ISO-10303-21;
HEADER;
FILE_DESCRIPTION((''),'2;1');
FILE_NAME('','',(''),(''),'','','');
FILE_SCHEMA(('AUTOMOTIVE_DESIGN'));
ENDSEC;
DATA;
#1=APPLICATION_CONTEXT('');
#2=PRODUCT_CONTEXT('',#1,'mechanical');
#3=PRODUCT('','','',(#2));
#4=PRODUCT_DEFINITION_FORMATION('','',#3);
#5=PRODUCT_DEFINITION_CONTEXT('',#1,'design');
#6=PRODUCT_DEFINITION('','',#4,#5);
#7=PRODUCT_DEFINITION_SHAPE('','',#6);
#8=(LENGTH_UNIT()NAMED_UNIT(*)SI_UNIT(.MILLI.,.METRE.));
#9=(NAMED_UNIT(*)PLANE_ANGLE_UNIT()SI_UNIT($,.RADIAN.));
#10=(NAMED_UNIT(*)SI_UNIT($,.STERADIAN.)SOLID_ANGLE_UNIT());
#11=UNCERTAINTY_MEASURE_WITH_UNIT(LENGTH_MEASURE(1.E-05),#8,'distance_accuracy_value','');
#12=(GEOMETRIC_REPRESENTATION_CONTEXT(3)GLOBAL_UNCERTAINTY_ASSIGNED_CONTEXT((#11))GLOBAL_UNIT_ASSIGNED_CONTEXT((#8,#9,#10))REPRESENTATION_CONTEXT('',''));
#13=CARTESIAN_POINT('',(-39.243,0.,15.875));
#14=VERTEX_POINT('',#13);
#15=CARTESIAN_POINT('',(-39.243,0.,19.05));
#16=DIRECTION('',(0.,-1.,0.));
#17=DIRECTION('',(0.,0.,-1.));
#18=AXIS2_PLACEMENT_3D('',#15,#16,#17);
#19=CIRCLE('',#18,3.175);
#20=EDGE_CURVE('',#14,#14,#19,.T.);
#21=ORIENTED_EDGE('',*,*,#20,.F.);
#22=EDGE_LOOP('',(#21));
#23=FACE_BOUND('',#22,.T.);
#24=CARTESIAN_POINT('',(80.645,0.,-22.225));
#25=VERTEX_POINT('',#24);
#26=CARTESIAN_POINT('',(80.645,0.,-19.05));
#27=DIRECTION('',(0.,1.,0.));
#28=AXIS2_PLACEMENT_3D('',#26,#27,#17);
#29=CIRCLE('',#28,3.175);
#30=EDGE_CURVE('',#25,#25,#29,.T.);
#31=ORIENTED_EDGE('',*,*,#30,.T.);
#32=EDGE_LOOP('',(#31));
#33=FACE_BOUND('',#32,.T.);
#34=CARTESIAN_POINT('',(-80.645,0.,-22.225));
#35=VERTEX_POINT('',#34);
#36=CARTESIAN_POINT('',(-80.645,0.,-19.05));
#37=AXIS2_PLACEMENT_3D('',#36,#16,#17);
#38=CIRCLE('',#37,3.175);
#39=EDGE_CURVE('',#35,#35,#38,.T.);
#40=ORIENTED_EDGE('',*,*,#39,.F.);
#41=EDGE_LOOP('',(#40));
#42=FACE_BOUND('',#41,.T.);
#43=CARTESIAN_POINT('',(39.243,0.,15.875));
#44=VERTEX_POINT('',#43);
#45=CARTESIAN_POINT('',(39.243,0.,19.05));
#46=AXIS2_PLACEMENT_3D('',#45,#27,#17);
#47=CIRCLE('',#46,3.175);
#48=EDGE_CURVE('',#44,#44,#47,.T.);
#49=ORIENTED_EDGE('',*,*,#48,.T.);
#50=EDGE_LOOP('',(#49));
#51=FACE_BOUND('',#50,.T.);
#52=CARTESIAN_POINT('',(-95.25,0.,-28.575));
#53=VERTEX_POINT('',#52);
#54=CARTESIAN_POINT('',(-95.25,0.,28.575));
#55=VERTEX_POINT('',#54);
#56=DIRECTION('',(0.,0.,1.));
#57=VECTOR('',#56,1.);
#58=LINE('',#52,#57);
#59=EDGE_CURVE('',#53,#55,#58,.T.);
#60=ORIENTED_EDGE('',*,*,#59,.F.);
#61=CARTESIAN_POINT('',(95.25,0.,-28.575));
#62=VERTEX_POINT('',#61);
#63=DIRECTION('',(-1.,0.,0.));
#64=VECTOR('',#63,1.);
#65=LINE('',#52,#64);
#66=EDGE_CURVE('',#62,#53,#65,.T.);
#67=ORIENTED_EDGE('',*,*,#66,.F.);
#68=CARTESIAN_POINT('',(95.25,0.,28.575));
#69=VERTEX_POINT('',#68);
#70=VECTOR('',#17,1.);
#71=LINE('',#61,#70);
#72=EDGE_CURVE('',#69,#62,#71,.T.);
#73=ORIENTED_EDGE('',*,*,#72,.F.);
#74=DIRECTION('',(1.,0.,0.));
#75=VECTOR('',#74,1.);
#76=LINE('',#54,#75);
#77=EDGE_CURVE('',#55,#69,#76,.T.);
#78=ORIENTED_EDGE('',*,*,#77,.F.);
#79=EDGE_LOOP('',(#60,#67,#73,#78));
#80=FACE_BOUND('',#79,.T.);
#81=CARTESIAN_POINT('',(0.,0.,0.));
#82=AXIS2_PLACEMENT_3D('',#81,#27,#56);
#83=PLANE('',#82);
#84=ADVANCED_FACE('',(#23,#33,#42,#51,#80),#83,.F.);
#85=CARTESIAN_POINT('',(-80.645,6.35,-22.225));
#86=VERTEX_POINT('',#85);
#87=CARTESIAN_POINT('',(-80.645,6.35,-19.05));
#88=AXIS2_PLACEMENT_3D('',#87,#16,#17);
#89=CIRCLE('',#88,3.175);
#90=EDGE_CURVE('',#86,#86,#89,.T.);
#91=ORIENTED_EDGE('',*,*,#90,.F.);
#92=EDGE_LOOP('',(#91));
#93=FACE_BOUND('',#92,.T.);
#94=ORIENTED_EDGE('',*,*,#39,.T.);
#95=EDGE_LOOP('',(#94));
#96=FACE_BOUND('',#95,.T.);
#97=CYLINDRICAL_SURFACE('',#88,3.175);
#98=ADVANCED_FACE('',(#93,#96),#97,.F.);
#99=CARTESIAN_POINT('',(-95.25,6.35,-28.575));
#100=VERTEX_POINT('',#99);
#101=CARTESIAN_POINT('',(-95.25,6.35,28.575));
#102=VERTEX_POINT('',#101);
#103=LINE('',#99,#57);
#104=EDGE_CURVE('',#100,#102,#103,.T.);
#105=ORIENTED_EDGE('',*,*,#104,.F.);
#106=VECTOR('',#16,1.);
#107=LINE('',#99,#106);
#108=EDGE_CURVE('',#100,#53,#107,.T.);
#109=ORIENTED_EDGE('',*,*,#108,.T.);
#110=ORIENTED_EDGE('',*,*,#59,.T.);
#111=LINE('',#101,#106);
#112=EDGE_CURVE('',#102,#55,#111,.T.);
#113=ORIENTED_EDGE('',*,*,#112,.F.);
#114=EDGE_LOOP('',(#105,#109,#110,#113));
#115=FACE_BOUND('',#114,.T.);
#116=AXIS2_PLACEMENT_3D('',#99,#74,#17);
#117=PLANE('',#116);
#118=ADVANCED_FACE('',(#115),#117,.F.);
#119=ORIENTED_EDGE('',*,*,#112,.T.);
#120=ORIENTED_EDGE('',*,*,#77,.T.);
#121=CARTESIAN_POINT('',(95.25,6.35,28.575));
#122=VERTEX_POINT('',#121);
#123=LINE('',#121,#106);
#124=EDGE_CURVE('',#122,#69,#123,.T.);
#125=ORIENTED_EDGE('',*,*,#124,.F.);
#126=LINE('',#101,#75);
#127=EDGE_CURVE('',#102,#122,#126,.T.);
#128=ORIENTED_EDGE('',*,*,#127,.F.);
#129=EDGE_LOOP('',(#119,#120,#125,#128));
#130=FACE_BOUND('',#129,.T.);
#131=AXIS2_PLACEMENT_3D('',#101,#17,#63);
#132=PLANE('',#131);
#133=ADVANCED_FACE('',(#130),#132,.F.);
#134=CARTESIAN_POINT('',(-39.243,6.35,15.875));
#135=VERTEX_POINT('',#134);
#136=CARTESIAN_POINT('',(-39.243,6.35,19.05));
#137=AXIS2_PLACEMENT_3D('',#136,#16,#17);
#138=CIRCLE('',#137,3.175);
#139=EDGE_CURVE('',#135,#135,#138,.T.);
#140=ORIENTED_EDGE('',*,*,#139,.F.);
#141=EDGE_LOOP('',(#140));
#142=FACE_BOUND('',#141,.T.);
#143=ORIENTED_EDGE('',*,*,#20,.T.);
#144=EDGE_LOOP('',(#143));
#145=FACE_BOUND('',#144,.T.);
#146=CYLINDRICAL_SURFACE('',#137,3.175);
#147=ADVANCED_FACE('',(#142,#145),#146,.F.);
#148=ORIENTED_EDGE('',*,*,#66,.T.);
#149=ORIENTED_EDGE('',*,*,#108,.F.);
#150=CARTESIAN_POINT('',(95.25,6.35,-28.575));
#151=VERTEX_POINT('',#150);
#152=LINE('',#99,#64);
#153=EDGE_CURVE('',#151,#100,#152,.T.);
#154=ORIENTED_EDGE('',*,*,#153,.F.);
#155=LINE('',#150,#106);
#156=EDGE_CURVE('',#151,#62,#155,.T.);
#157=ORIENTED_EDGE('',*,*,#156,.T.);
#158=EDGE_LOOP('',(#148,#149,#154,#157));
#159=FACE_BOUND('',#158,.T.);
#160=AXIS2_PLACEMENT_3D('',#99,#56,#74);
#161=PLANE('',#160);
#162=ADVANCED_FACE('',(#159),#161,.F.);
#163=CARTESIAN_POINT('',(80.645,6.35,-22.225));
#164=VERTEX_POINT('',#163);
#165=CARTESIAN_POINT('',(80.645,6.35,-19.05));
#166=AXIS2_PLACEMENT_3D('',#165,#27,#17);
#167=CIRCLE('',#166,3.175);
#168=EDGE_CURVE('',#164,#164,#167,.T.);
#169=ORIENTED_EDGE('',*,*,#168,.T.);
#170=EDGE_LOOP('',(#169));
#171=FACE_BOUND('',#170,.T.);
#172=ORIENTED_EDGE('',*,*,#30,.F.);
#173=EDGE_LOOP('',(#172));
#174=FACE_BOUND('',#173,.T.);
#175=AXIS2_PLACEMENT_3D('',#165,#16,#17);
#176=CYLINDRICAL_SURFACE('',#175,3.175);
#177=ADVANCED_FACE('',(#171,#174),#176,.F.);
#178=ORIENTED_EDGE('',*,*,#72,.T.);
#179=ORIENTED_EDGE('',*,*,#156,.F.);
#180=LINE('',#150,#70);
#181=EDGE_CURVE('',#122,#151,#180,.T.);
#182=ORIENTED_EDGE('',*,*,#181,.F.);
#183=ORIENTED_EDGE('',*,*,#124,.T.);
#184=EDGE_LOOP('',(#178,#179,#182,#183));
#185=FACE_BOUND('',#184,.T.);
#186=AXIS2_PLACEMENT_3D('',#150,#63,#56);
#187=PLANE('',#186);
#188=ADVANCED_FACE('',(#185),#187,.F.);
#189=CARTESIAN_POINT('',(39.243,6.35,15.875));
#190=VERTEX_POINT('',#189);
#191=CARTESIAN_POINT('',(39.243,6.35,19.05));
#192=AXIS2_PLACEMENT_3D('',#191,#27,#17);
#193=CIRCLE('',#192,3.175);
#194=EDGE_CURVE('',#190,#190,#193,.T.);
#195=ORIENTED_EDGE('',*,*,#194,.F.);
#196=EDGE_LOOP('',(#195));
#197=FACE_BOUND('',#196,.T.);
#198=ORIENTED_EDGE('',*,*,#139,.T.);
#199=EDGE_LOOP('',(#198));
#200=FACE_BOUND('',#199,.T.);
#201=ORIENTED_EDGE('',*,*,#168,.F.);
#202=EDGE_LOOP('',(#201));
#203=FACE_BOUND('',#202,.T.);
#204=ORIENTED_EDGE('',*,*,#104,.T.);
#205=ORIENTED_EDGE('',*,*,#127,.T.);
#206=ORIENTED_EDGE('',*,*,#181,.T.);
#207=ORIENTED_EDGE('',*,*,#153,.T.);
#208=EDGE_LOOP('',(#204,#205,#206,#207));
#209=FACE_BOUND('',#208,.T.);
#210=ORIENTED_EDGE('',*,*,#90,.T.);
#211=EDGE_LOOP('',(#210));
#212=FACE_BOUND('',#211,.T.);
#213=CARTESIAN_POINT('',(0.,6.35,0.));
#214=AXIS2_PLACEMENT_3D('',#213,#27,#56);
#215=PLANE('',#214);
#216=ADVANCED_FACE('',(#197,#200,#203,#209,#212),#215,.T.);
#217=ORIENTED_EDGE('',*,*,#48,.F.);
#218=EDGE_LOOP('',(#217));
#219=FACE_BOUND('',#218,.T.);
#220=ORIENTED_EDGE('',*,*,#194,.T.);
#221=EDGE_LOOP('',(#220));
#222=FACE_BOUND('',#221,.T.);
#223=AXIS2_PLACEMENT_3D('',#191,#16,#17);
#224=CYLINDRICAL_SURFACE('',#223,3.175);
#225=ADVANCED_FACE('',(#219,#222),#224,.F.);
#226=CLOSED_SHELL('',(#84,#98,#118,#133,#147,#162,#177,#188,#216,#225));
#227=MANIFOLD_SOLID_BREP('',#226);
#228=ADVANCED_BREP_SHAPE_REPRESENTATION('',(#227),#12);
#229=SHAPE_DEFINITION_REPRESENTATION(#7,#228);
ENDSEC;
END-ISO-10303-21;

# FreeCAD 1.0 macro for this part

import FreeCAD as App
import Part
import Sketcher
from FreeCAD import Vector
Q = App.Units.Quantity

doc = App.newDocument("Part")
body = doc.addObject("PartDesign::Body", "Body")

# Sketch on XZ plane
sketch1 = body.newObject("Sketcher::SketchObject", "Sketch")
sketch1.AttachmentSupport = (doc.getObject("XZ_Plane"), [""])
sketch1.MapMode = "FlatFace"
sketch1.addGeometry(Part.LineSegment(Vector(-95, -29, 0), Vector(-95, 29, 0)), False)
sketch1.addGeometry(Part.LineSegment(Vector(-95, 29, 0), Vector(95, 29, 0)), False)
sketch1.addGeometry(Part.LineSegment(Vector(95, 29, 0), Vector(95, -29, 0)), False)
sketch1.addGeometry(Part.LineSegment(Vector(95, -29, 0), Vector(-95, -29, 0)), False)
sketch1.addConstraint(Sketcher.Constraint("Coincident", 0, 2, 1, 1))
sketch1.addConstraint(Sketcher.Constraint("Coincident", 1, 2, 2, 1))
sketch1.addConstraint(Sketcher.Constraint("Coincident", 2, 2, 3, 1))
sketch1.addConstraint(Sketcher.Constraint("Coincident", 3, 2, 0, 1))
sketch1.addConstraint(Sketcher.Constraint("Vertical", 0))
sketch1.addConstraint(Sketcher.Constraint("Horizontal", 1))
sketch1.addConstraint(Sketcher.Constraint("Vertical", 2))
sketch1.addConstraint(Sketcher.Constraint("Horizontal", 3))
sketch1.addConstraint(Sketcher.Constraint("Symmetric", 0, 2, 2, 2, -1, 1))
sketch1.addConstraint(Sketcher.Constraint("DistanceX", 1, 1, 1, 2, Q("7.5 in")))
sketch1.addConstraint(Sketcher.Constraint("DistanceY", 0, 1, 0, 2, Q("2.25 in")))
pad1 = body.newObject("PartDesign::Pad", "Pad")
pad1.Profile = sketch1
pad1.Length = Q("0.25 in")
pad1.Reversed = True

# Sketch on XZ plane
sketch2 = body.newObject("Sketcher::SketchObject", "Sketch001")
sketch2.AttachmentSupport = (doc.getObject("XZ_Plane"), [""])
sketch2.MapMode = "FlatFace"
sketch2.addGeometry(Part.Circle(Vector(-80.6, -19.1, 0), Vector(0, 0, 1), 3.2), False)
sketch2.addGeometry(Part.Circle(Vector(-39.2, 19.1, 0), Vector(0, 0, 1), 3.2), False)
sketch2.addConstraint(Sketcher.Constraint("Equal", 0, 1))
sketch2.addConstraint(Sketcher.Constraint("Diameter", 0, Q("0.25 in")))
sketch2.addConstraint(Sketcher.Constraint("DistanceY", 0, 3, 1, 3, Q("1.5 in")))
sketch2.addConstraint(Sketcher.Constraint("DistanceY", 0, 3, -1, 1, Q("0.75 in")))
sketch2.addConstraint(Sketcher.Constraint("DistanceX", 0, 3, 1, 3, Q("1.63 in")))
sketch2.addConstraint(Sketcher.Constraint("DistanceX", 0, 3, -1, 1, Q("3.175 in")))
pocket1 = body.newObject("PartDesign::Pocket", "Pocket")
pocket1.Profile = sketch2
pocket1.Type = "ThroughAll"
doc.recompute()

mirrored = body.newObject("PartDesign::Mirrored", "Mirrored")
mirrored.Originals = [pocket1]
mirrored.MirrorPlane = (doc.getObject("YZ_Plane"), [""])
body.Tip = mirrored

doc.recompute()
